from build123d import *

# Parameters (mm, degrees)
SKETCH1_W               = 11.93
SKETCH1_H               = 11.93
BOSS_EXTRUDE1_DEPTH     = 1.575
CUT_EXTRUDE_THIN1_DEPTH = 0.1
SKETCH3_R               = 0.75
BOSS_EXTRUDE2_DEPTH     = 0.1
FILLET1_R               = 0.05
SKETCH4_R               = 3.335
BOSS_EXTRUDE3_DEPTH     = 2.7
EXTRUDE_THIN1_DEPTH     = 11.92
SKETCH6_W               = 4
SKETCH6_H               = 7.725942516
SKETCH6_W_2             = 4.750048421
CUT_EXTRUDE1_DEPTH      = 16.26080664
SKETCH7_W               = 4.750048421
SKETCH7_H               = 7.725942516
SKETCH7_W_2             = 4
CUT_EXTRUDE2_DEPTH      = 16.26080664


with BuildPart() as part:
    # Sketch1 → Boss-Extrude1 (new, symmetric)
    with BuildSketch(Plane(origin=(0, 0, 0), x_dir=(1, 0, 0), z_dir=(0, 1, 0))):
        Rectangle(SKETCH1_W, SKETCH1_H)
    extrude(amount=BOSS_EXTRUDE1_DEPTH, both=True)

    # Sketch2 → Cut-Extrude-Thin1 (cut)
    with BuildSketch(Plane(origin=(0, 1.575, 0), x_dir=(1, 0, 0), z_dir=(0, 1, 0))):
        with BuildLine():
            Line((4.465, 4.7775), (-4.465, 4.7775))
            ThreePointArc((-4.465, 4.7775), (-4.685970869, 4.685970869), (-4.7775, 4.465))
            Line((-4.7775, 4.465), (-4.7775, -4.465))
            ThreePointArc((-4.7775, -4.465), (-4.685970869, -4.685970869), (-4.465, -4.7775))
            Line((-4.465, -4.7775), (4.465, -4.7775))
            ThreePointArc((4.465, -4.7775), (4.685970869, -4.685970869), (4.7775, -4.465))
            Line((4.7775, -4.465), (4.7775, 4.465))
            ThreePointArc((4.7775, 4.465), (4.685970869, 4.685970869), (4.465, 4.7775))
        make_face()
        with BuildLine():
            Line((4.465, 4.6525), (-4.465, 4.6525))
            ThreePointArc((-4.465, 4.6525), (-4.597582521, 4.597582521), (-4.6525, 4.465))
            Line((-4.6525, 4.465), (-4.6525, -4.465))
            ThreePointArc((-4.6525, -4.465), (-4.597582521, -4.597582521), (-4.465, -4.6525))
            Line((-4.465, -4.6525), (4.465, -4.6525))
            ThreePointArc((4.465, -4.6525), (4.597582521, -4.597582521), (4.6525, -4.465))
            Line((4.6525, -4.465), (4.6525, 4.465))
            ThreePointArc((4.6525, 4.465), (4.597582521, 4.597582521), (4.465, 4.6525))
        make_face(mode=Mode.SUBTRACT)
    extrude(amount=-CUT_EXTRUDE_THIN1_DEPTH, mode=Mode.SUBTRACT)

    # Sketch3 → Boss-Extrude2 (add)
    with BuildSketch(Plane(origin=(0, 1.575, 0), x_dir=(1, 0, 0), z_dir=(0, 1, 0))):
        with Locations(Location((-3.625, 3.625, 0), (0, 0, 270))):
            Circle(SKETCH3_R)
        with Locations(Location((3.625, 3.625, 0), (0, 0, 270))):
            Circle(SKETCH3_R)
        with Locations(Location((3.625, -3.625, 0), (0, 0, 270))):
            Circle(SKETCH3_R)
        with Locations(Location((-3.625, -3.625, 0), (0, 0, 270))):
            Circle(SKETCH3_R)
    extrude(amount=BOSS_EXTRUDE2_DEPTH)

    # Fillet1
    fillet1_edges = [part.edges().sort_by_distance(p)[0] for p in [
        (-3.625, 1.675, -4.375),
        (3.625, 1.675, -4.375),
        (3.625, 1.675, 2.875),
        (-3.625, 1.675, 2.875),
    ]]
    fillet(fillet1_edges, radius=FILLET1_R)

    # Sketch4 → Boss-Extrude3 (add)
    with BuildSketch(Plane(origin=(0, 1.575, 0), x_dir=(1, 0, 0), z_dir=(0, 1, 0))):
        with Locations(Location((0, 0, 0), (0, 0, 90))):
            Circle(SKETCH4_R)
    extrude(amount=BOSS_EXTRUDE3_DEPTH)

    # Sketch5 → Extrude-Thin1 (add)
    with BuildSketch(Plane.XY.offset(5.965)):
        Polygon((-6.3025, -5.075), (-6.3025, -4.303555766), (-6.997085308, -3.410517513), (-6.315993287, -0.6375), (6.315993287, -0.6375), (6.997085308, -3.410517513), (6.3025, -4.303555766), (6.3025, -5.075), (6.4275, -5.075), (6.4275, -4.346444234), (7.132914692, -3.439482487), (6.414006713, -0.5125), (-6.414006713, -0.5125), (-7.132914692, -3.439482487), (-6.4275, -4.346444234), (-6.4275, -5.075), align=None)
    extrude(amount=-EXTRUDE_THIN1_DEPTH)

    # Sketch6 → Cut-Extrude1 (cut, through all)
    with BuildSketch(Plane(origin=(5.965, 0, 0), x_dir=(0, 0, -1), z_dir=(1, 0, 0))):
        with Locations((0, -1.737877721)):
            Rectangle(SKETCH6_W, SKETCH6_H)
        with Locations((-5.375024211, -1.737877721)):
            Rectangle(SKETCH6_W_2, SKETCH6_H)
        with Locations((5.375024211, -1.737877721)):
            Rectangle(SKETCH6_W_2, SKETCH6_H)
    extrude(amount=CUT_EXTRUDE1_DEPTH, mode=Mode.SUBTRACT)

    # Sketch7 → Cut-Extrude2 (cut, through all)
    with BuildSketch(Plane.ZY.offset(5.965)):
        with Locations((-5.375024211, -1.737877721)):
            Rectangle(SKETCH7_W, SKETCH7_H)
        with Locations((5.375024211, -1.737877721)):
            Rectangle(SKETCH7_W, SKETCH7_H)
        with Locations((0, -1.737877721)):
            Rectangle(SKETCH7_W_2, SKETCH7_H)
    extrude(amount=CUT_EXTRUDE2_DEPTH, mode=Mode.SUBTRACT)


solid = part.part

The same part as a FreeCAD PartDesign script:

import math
import FreeCAD as App
import Part
import Sketcher
Q = App.Units.Quantity


def edges_at(feature, points):
    """Names of the edges that pass closest to the given points."""
    edges = feature.Shape.Edges
    near = lambda p: min(range(len(edges)), key=lambda i: edges[i].distToShape(Part.Vertex(*p))[0])
    return sorted({f"Edge{near(p) + 1}" for p in points})


def add_polygon(sketch, points):
    """Adds a closed chain of lines whose ends are joined by coincident constraints."""
    first, n = sketch.GeometryCount, len(points)
    for a, b in zip(points, points[1:] + points[:1]):
        sketch.addGeometry(Part.LineSegment(App.Vector(*a, 0), App.Vector(*b, 0)), False)
    for i in range(n):
        sketch.addConstraint(Sketcher.Constraint("Coincident", first + i, 2, first + (i + 1) % n, 1))

doc = App.newDocument("Part")
body = doc.addObject("PartDesign::Body", "Body")

# Sketch on XZ plane
sketch1 = body.newObject("Sketcher::SketchObject", "Sketch")
sketch1.AttachmentSupport = (doc.getObject("XZ_Plane"), [""])
sketch1.MapMode = "FlatFace"
add_polygon(sketch1, [(-6, -6), (-6, 6), (6, 6), (6, -6)])  # lines 0-3
sketch1.addConstraint([
    Sketcher.Constraint("Vertical", 0),
    Sketcher.Constraint("Horizontal", 1),
    Sketcher.Constraint("Vertical", 2),
    Sketcher.Constraint("Horizontal", 3),
    Sketcher.Constraint("Symmetric", 0, 2, 2, 2, -1, 1),
    Sketcher.Constraint("Equal", 3, 0),
    Sketcher.Constraint("DistanceX", 1, 1, 1, 2, Q("11.93 mm")),
])
pad1 = body.newObject("PartDesign::Pad", "Pad")
pad1.Profile = sketch1
pad1.Length = 3.15
pad1.Midplane = True

# Sketch on XZ plane
sketch2 = body.newObject("Sketcher::SketchObject", "Sketch001")
sketch2.AttachmentSupport = (doc.getObject("XZ_Plane"), [""])
sketch2.MapMode = "FlatFace"
sketch2.AttachmentOffset = App.Placement(App.Vector(0, 0, -1.575), App.Rotation())
sketch2.addGeometry([
    Part.LineSegment(App.Vector(4.46, -4.78, 0), App.Vector(-4.46, -4.78, 0)),  # 0
    Part.ArcOfCircle(Part.Circle(App.Vector(-4.46, -4.46, 0), App.Vector(0, 0, 1), 0.31), math.radians(180), math.radians(270)),  # 1
    Part.LineSegment(App.Vector(-4.78, -4.46, 0), App.Vector(-4.78, 4.46, 0)),  # 2
    Part.ArcOfCircle(Part.Circle(App.Vector(-4.46, 4.46, 0), App.Vector(0, 0, 1), 0.31), math.radians(90), math.radians(180)),  # 3
    Part.LineSegment(App.Vector(-4.46, 4.78, 0), App.Vector(4.46, 4.78, 0)),  # 4
    Part.ArcOfCircle(Part.Circle(App.Vector(4.46, 4.46, 0), App.Vector(0, 0, 1), 0.31), math.radians(0), math.radians(90)),  # 5
    Part.LineSegment(App.Vector(4.78, 4.46, 0), App.Vector(4.78, -4.46, 0)),  # 6
    Part.ArcOfCircle(Part.Circle(App.Vector(4.46, -4.46, 0), App.Vector(0, 0, 1), 0.31), math.radians(-90), math.radians(0)),  # 7
    Part.LineSegment(App.Vector(-4.46, -4.65, 0), App.Vector(4.46, -4.65, 0)),  # 8
    Part.ArcOfCircle(Part.Circle(App.Vector(4.46, -4.46, 0), App.Vector(0, 0, 1), 0.19), math.radians(-90), math.radians(0)),  # 9
    Part.LineSegment(App.Vector(4.65, -4.46, 0), App.Vector(4.65, 4.46, 0)),  # 10
    Part.ArcOfCircle(Part.Circle(App.Vector(4.46, 4.46, 0), App.Vector(0, 0, 1), 0.19), math.radians(0), math.radians(90)),  # 11
    Part.LineSegment(App.Vector(4.46, 4.65, 0), App.Vector(-4.46, 4.65, 0)),  # 12
    Part.ArcOfCircle(Part.Circle(App.Vector(-4.46, 4.46, 0), App.Vector(0, 0, 1), 0.19), math.radians(90), math.radians(180)),  # 13
    Part.LineSegment(App.Vector(-4.65, 4.46, 0), App.Vector(-4.65, -4.46, 0)),  # 14
    Part.ArcOfCircle(Part.Circle(App.Vector(-4.46, -4.46, 0), App.Vector(0, 0, 1), 0.19), math.radians(-180), math.radians(-90)),  # 15
], False)
sketch2.addConstraint([
    Sketcher.Constraint("Tangent", 0, 2, 1, 2),
    Sketcher.Constraint("Tangent", 1, 1, 2, 1),
    Sketcher.Constraint("Tangent", 2, 2, 3, 2),
    Sketcher.Constraint("Tangent", 3, 1, 4, 1),
    Sketcher.Constraint("Tangent", 4, 2, 5, 2),
    Sketcher.Constraint("Tangent", 5, 1, 6, 1),
    Sketcher.Constraint("Tangent", 6, 2, 7, 2),
    Sketcher.Constraint("Tangent", 7, 1, 0, 1),
    Sketcher.Constraint("Tangent", 8, 2, 9, 1),
    Sketcher.Constraint("Tangent", 9, 2, 10, 1),
    Sketcher.Constraint("Tangent", 10, 2, 11, 1),
    Sketcher.Constraint("Tangent", 11, 2, 12, 1),
    Sketcher.Constraint("Tangent", 12, 2, 13, 1),
    Sketcher.Constraint("Tangent", 13, 2, 14, 1),
    Sketcher.Constraint("Tangent", 14, 2, 15, 1),
    Sketcher.Constraint("Tangent", 15, 2, 8, 1),
    Sketcher.Constraint("Horizontal", 0),
    Sketcher.Constraint("Vertical", 2),
    Sketcher.Constraint("Horizontal", 4),
    Sketcher.Constraint("Vertical", 6),
    Sketcher.Constraint("Horizontal", 8),
    Sketcher.Constraint("Vertical", 10),
    Sketcher.Constraint("Horizontal", 12),
    Sketcher.Constraint("Vertical", 14),
    Sketcher.Constraint("Coincident", 9, 3, 7, 3),
    Sketcher.Constraint("Coincident", 11, 3, 5, 3),
    Sketcher.Constraint("Coincident", 13, 3, 3, 3),
    Sketcher.Constraint("Equal", 1, 3),
    Sketcher.Constraint("Equal", 3, 5),
    Sketcher.Constraint("Equal", 5, 7),
    Sketcher.Constraint("Equal", 13, 15),
    Sketcher.Constraint("Symmetric", 1, 3, 5, 3, -1, 1),
    Sketcher.Constraint("Equal", 12, 2),
    Sketcher.Constraint("DistanceX", 0, 2, 0, 1, Q("8.93 mm")),
    Sketcher.Constraint("Radius", 1, Q("0.3125 mm")),
    Sketcher.Constraint("Radius", 9, Q("0.1875 mm")),
])
pocket1 = body.newObject("PartDesign::Pocket", "Pocket")
pocket1.Profile = sketch2
pocket1.Length = 0.1
pocket1.Reversed = True

# Sketch on XZ plane
sketch3 = body.newObject("Sketcher::SketchObject", "Sketch002")
sketch3.AttachmentSupport = (doc.getObject("XZ_Plane"), [""])
sketch3.MapMode = "FlatFace"
sketch3.AttachmentOffset = App.Placement(App.Vector(0, 0, -1.575), App.Rotation())
sketch3.addGeometry([
    Part.Circle(App.Vector(-3.6, -3.6, 0), App.Vector(0, 0, 1), 0.8),
    Part.Circle(App.Vector(3.6, -3.6, 0), App.Vector(0, 0, 1), 0.8),
    Part.Circle(App.Vector(3.6, 3.6, 0), App.Vector(0, 0, 1), 0.8),
    Part.Circle(App.Vector(-3.6, 3.6, 0), App.Vector(0, 0, 1), 0.8),
], False)
sketch3.addConstraint([
    Sketcher.Constraint("Equal", 0, 1),
    Sketcher.Constraint("Equal", 1, 2),
    Sketcher.Constraint("Equal", 2, 3),
    Sketcher.Constraint("Symmetric", 0, 3, 2, 3, -1, 1),
    Sketcher.Constraint("Symmetric", 1, 3, 3, 3, -1, 1),
    Sketcher.Constraint("Symmetric", 0, 3, 1, 3, -2),
    Sketcher.Constraint("Diameter", 0, Q("1.5 mm")),
    Sketcher.Constraint("DistanceX", 0, 3, 1, 3, Q("7.25 mm")),
    Sketcher.Constraint("DistanceY", 1, 3, 2, 3, Q("7.25 mm")),
])
pad2 = body.newObject("PartDesign::Pad", "Pad001")
pad2.Profile = sketch3
pad2.Length = 0.1
pad2.Reversed = True
doc.recompute()

fillet = body.newObject("PartDesign::Fillet", "Fillet")
fillet.Base = (pad2, edges_at(pad2, [
    (-3.625, 1.675, -4.375),
    (3.625, 1.675, -4.375),
    (3.625, 1.675, 2.875),
    (-3.625, 1.675, 2.875),
]))
fillet.Radius = 0.05

# Sketch on XZ plane
sketch4 = body.newObject("Sketcher::SketchObject", "Sketch003")
sketch4.AttachmentSupport = (doc.getObject("XZ_Plane"), [""])
sketch4.MapMode = "FlatFace"
sketch4.AttachmentOffset = App.Placement(App.Vector(0, 0, -1.575), App.Rotation())
sketch4.addGeometry(Part.Circle(App.Vector(0, 0, 0), App.Vector(0, 0, 1), 3.3), False)
sketch4.addConstraint([
    Sketcher.Constraint("Coincident", 0, 3, -1, 1),
    Sketcher.Constraint("Diameter", 0, Q("6.67 mm")),
])
pad3 = body.newObject("PartDesign::Pad", "Pad002")
pad3.Profile = sketch4
pad3.Length = 2.7
pad3.Reversed = True

# Sketch on XY plane
sketch5 = body.newObject("Sketcher::SketchObject", "Sketch004")
sketch5.AttachmentSupport = (doc.getObject("XY_Plane"), [""])
sketch5.MapMode = "FlatFace"
sketch5.AttachmentOffset = App.Placement(App.Vector(0, 0, 5.965), App.Rotation())
add_polygon(sketch5, [(-6.3, -5.08), (-6.3, -4.3), (-7, -3.41), (-6.32, -0.64), (6.32, -0.64), (7, -3.41), (6.3, -4.3), (6.3, -5.08), (6.43, -5.08), (6.43, -4.35), (7.13, -3.44), (6.41, -0.51), (-6.41, -0.51), (-7.13, -3.44), (-6.43, -4.35), (-6.43, -5.08)])  # lines 0-15
sketch5.addConstraint([
    Sketcher.Constraint("Vertical", 0),
    Sketcher.Constraint("Horizontal", 3),
    Sketcher.Constraint("Vertical", 6),
    Sketcher.Constraint("Horizontal", 7),
    Sketcher.Constraint("Vertical", 8),
    Sketcher.Constraint("Horizontal", 11),
    Sketcher.Constraint("Vertical", 14),
    Sketcher.Constraint("Horizontal", 15),
    Sketcher.Constraint("Symmetric", 1, 2, 4, 2, -2),
    Sketcher.Constraint("Symmetric", 0, 2, 5, 2, -2),
    Sketcher.Constraint("Symmetric", 9, 2, 12, 2, -2),
    Sketcher.Constraint("Symmetric", 8, 2, 13, 2, -2),
    Sketcher.Constraint("Parallel", 5, 9),
    Sketcher.Constraint("Parallel", 4, 10),
    Sketcher.Constraint("Parallel", 2, 12),
    Sketcher.Constraint("Horizontal", 7, 2, 14, 2),
    Sketcher.Constraint("Equal", 2, 4),
    Sketcher.Constraint("DistanceX", 7, 1, 7, 2, Q("0.125 mm")),
    Sketcher.Constraint("DistanceX", 0, 2, 7, 2, Q("12.73 mm")),
    Sketcher.Constraint("DistanceX", 11, 2, 3, 2, Q("12.73 mm")),
    Sketcher.Constraint("DistanceY", 6, 2, -1, 1, Q("5.075 mm")),
    Sketcher.Constraint("DistanceY", 3, 2, 10, 2, Q("0.125 mm")),
    Sketcher.Constraint("DistanceY", 2, 2, -1, 1, Q("0.6375 mm")),
    Sketcher.Constraint("DistanceX", 3, 1, 3, 2, Q("12.631987 mm")),
    Sketcher.Constraint("DistanceY", 0, 1, 0, 2, Q("0.771444 mm")),
    Sketcher.Constraint("DistanceY", 8, 1, 8, 2, Q("0.728556 mm")),
    Sketcher.Constraint("DistanceY", 0, 2, 1, 2, Q("0.893038 mm")),
    Sketcher.Constraint("DistanceX", 1, 2, 3, 2, Q("13.313079 mm")),
])
pad4 = body.newObject("PartDesign::Pad", "Pad003")
pad4.Profile = sketch5
pad4.Length = 11.92
pad4.Reversed = True

# Sketch on YZ plane
sketch6 = body.newObject("Sketcher::SketchObject", "Sketch005")
sketch6.AttachmentSupport = (doc.getObject("YZ_Plane"), [""])
sketch6.MapMode = "FlatFace"
sketch6.AttachmentOffset = App.Placement(App.Vector(0, 0, 5.965), App.Rotation())
add_polygon(sketch6, [(2.1, 2), (-5.6, 2), (-5.6, -2), (2.1, -2)])  # lines 0-3
add_polygon(sketch6, [(2.1, 7.8), (-5.6, 7.8), (-5.6, 3), (2.1, 3)])  # lines 4-7
add_polygon(sketch6, [(2.1, -3), (-5.6, -3), (-5.6, -7.8), (2.1, -7.8)])  # lines 8-11
sketch6.addConstraint([
    Sketcher.Constraint("Horizontal", 0),
    Sketcher.Constraint("Vertical", 1),
    Sketcher.Constraint("Horizontal", 2),
    Sketcher.Constraint("Vertical", 3),
    Sketcher.Constraint("Horizontal", 4),
    Sketcher.Constraint("Vertical", 5),
    Sketcher.Constraint("Horizontal", 6),
    Sketcher.Constraint("Vertical", 7),
    Sketcher.Constraint("Horizontal", 8),
    Sketcher.Constraint("Vertical", 9),
    Sketcher.Constraint("Horizontal", 10),
    Sketcher.Constraint("Vertical", 11),
    Sketcher.Constraint("Symmetric", 5, 2, 8, 2, -1),
    Sketcher.Constraint("Symmetric", 7, 2, 10, 2, -1),
    Sketcher.Constraint("Vertical", 1, 2, 4, 2),
    Sketcher.Constraint("Vertical", 3, 2, 6, 2),
    Sketcher.Constraint("DistanceY", 1, 2, 1, 1, Q("4 mm")),
    Sketcher.Constraint("DistanceY", -1, 1, 0, 2, Q("2 mm")),
    Sketcher.Constraint("DistanceY", -1, 1, 5, 2, Q("3 mm")),
    Sketcher.Constraint("DistanceY", 5, 2, 5, 1, Q("4.750048 mm")),
    Sketcher.Constraint("DistanceX", 0, 2, 0, 1, Q("7.725943 mm")),
    Sketcher.Constraint("DistanceX", 0, 2, -1, 1, Q("5.600849 mm")),
])
pocket2 = body.newObject("PartDesign::Pocket", "Pocket001")
pocket2.Profile = sketch6
pocket2.Type = "ThroughAll"
pocket2.Reversed = True

# Sketch on YZ plane
sketch7 = body.newObject("Sketcher::SketchObject", "Sketch006")
sketch7.AttachmentSupport = (doc.getObject("YZ_Plane"), [""])
sketch7.MapMode = "FlatFace"
sketch7.AttachmentOffset = App.Placement(App.Vector(0, 0, -5.965), App.Rotation())
add_polygon(sketch7, [(2.1, -7.8), (-5.6, -7.8), (-5.6, -3), (2.1, -3)])  # lines 0-3
add_polygon(sketch7, [(2.1, 3), (-5.6, 3), (-5.6, 7.8), (2.1, 7.8)])  # lines 4-7
add_polygon(sketch7, [(2.1, -2), (-5.6, -2), (-5.6, 2), (2.1, 2)])  # lines 8-11
sketch7.addConstraint([
    Sketcher.Constraint("Horizontal", 0),
    Sketcher.Constraint("Vertical", 1),
    Sketcher.Constraint("Horizontal", 2),
    Sketcher.Constraint("Vertical", 3),
    Sketcher.Constraint("Horizontal", 4),
    Sketcher.Constraint("Vertical", 5),
    Sketcher.Constraint("Horizontal", 6),
    Sketcher.Constraint("Vertical", 7),
    Sketcher.Constraint("Horizontal", 8),
    Sketcher.Constraint("Vertical", 9),
    Sketcher.Constraint("Horizontal", 10),
    Sketcher.Constraint("Vertical", 11),
    Sketcher.Constraint("Symmetric", 1, 2, 4, 2, -1),
    Sketcher.Constraint("Symmetric", 3, 2, 6, 2, -1),
    Sketcher.Constraint("Vertical", 5, 2, 8, 2),
    Sketcher.Constraint("Vertical", 7, 2, 10, 2),
    Sketcher.Constraint("DistanceY", 9, 1, 9, 2, Q("4 mm")),
    Sketcher.Constraint("DistanceY", 1, 2, -1, 1, Q("3 mm")),
    Sketcher.Constraint("DistanceY", 8, 2, -1, 1, Q("2 mm")),
    Sketcher.Constraint("DistanceY", 1, 1, 1, 2, Q("4.750048 mm")),
    Sketcher.Constraint("DistanceX", 0, 2, 0, 1, Q("7.725943 mm")),
    Sketcher.Constraint("DistanceX", 0, 2, -1, 1, Q("5.600849 mm")),
])
pocket3 = body.newObject("PartDesign::Pocket", "Pocket002")
pocket3.Profile = sketch7
pocket3.Type = "ThroughAll"

doc.recompute()
